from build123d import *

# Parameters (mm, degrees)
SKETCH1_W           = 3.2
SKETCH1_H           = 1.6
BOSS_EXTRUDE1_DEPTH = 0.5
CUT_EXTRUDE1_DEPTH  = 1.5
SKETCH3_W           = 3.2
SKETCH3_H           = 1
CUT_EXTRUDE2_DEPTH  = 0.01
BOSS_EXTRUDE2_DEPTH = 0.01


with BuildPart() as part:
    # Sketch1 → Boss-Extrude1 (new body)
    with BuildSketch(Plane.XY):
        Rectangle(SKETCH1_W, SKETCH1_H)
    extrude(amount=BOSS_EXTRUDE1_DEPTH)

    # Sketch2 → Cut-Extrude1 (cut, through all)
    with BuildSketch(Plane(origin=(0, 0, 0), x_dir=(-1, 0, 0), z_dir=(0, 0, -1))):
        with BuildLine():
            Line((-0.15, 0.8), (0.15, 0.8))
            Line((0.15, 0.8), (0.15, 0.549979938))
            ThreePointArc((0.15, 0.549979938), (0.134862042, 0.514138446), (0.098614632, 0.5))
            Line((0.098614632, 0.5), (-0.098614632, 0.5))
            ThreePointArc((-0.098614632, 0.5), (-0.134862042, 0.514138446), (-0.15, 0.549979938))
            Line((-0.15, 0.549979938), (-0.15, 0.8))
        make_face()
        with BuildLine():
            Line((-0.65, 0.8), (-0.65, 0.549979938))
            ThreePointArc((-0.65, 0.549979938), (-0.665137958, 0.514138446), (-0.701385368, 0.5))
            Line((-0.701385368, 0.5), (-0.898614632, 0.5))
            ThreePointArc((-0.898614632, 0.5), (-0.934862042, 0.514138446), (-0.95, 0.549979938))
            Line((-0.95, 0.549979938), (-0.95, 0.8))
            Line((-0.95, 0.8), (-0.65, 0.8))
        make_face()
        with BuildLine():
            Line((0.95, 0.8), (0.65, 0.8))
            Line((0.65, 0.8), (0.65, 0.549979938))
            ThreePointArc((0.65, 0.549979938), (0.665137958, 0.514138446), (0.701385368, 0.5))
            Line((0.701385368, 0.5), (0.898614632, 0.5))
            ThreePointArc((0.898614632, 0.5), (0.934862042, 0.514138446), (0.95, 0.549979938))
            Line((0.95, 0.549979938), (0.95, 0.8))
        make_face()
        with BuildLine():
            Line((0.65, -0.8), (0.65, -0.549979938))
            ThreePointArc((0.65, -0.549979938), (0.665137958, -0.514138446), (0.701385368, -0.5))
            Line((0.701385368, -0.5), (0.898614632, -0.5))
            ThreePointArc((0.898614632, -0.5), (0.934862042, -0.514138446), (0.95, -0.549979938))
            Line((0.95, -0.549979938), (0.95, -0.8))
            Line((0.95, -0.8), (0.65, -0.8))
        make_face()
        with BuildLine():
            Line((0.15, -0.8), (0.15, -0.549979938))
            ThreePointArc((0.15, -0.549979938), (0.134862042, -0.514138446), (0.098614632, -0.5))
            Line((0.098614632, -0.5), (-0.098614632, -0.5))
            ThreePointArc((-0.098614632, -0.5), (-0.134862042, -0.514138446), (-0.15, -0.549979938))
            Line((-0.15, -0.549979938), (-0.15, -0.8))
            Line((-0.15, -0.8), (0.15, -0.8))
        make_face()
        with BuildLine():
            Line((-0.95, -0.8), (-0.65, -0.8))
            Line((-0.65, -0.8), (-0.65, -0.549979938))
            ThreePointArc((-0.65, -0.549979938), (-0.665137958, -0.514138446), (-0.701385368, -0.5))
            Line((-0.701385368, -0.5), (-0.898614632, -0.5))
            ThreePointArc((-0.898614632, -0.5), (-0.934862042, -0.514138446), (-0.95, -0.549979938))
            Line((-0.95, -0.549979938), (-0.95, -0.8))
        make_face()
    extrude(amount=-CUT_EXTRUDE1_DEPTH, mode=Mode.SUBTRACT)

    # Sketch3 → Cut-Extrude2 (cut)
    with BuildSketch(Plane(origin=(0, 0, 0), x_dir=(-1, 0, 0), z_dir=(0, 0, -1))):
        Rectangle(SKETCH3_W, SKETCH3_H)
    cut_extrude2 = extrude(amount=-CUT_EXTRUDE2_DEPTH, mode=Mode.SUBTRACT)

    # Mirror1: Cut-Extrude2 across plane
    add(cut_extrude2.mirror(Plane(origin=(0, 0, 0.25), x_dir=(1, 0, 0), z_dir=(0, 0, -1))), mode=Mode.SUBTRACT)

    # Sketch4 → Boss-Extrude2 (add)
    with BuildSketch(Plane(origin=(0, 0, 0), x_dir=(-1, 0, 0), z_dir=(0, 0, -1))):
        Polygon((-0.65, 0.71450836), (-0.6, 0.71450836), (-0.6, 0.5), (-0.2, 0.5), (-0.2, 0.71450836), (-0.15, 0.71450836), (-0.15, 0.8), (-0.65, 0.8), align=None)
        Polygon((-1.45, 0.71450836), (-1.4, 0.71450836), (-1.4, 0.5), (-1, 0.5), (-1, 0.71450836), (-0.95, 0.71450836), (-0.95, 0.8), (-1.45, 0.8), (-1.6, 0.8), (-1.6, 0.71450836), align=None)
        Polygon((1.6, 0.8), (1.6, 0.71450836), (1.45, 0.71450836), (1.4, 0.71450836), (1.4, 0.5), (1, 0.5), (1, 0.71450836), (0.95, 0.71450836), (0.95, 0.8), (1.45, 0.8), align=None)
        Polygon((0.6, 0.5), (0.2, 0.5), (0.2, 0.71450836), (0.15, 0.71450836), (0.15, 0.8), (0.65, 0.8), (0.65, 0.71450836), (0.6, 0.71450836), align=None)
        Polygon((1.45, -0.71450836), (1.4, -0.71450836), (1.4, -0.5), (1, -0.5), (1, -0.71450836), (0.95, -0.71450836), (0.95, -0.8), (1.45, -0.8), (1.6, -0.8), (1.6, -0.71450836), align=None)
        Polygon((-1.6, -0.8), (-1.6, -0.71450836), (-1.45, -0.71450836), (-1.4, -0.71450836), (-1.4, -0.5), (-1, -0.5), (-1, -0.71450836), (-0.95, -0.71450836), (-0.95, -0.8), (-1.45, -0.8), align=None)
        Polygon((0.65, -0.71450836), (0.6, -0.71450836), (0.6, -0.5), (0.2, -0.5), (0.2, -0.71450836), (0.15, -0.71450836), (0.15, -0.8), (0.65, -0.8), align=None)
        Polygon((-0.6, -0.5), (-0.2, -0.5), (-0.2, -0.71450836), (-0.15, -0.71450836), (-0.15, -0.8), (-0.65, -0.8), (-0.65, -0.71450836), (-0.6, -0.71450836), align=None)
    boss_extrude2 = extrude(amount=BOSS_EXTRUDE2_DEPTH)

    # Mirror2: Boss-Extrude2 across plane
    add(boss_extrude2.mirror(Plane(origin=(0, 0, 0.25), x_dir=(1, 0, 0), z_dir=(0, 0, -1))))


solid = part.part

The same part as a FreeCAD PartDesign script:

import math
import FreeCAD as App
import Part
import Sketcher
from FreeCAD import Vector
Q = App.Units.Quantity


def add_polygon(sketch, points):
    """Adds a closed chain of lines whose ends are joined by coincident constraints."""
    first, n = sketch.GeometryCount, len(points)
    for a, b in zip(points, points[1:] + points[:1]):
        sketch.addGeometry(Part.LineSegment(App.Vector(*a, 0), App.Vector(*b, 0)), False)
    for i in range(n):
        sketch.addConstraint(Sketcher.Constraint("Coincident", first + i, 2, first + (i + 1) % n, 1))

doc = App.newDocument("Part")
body = doc.addObject("PartDesign::Body", "Body")

# Sketch on XY plane
sketch1 = doc.addObject("Sketcher::SketchObject", "Sketch")
body.addObject(sketch1)
sketch1.AttachmentSupport = (doc.XY_Plane, [""])
sketch1.MapMode = "FlatFace"
add_polygon(sketch1, [(-1.6, 0.8), (-1.6, -0.8), (1.6, -0.8), (1.6, 0.8)])  # lines 0-3
sketch1.addConstraint(Sketcher.Constraint("Vertical", 0))
sketch1.addConstraint(Sketcher.Constraint("Horizontal", 1))
sketch1.addConstraint(Sketcher.Constraint("Vertical", 2))
sketch1.addConstraint(Sketcher.Constraint("Horizontal", 3))
sketch1.addConstraint(Sketcher.Constraint("Symmetric", 0, 2, 2, 2, -1, 1))
sketch1.addConstraint(Sketcher.Constraint("DistanceX", 1, 1, 1, 2, Q("3.2 mm")))
sketch1.addConstraint(Sketcher.Constraint("DistanceY", 0, 2, 0, 1, Q("1.6 mm")))
pad1 = doc.addObject("PartDesign::Pad", "Pad")
body.addObject(pad1)
pad1.Profile = sketch1
pad1.Length = 0.5

# Sketch on XY plane
sketch2 = doc.addObject("Sketcher::SketchObject", "Sketch001")
body.addObject(sketch2)
sketch2.AttachmentSupport = (doc.XY_Plane, [""])
sketch2.MapMode = "FlatFace"
sketch2.addGeometry(Part.LineSegment(Vector(-0.15, 0.8, 0), Vector(0.15, 0.8, 0)), False)
sketch2.addGeometry(Part.LineSegment(Vector(0.15, 0.8, 0), Vector(0.15, 0.54998, 0)), False)
sketch2.addGeometry(Part.ArcOfCircle(Part.Circle(Vector(0.100001, 0.54998, 0), Vector(0, 0, 1), 0.049999), math.radians(-91.588711), math.radians(0)), False)
sketch2.addGeometry(Part.LineSegment(Vector(0.098615, 0.5, 0), Vector(-0.098615, 0.5, 0)), False)
sketch2.addGeometry(Part.ArcOfCircle(Part.Circle(Vector(-0.100001, 0.54998, 0), Vector(0, 0, 1), 0.049999), math.radians(180), math.radians(271.588711)), False)
sketch2.addGeometry(Part.LineSegment(Vector(-0.15, 0.54998, 0), Vector(-0.15, 0.8, 0)), False)
sketch2.addGeometry(Part.LineSegment(Vector(0.65, 0.54998, 0), Vector(0.65, 0.8, 0)), False)
sketch2.addGeometry(Part.LineSegment(Vector(0.65, 0.8, 0), Vector(0.95, 0.8, 0)), False)
sketch2.addGeometry(Part.LineSegment(Vector(0.95, 0.8, 0), Vector(0.95, 0.54998, 0)), False)
sketch2.addGeometry(Part.ArcOfCircle(Part.Circle(Vector(0.900001, 0.54998, 0), Vector(0, 0, 1), 0.049999), math.radians(-91.588711), math.radians(0)), False)
sketch2.addGeometry(Part.LineSegment(Vector(0.898615, 0.5, 0), Vector(0.701385, 0.5, 0)), False)
sketch2.addGeometry(Part.ArcOfCircle(Part.Circle(Vector(0.699999, 0.54998, 0), Vector(0, 0, 1), 0.049999), math.radians(180), math.radians(271.588711)), False)
sketch2.addGeometry(Part.LineSegment(Vector(-0.95, 0.8, 0), Vector(-0.65, 0.8, 0)), False)
sketch2.addGeometry(Part.LineSegment(Vector(-0.65, 0.8, 0), Vector(-0.65, 0.54998, 0)), False)
sketch2.addGeometry(Part.ArcOfCircle(Part.Circle(Vector(-0.699999, 0.54998, 0), Vector(0, 0, 1), 0.049999), math.radians(-91.588711), math.radians(0)), False)
sketch2.addGeometry(Part.LineSegment(Vector(-0.701385, 0.5, 0), Vector(-0.898615, 0.5, 0)), False)
sketch2.addGeometry(Part.ArcOfCircle(Part.Circle(Vector(-0.900001, 0.54998, 0), Vector(0, 0, 1), 0.049999), math.radians(180), math.radians(271.588711)), False)
sketch2.addGeometry(Part.LineSegment(Vector(-0.95, 0.54998, 0), Vector(-0.95, 0.8, 0)), False)
sketch2.addGeometry(Part.LineSegment(Vector(-0.65, -0.54998, 0), Vector(-0.65, -0.8, 0)), False)
sketch2.addGeometry(Part.LineSegment(Vector(-0.65, -0.8, 0), Vector(-0.95, -0.8, 0)), False)
sketch2.addGeometry(Part.LineSegment(Vector(-0.95, -0.8, 0), Vector(-0.95, -0.54998, 0)), False)
sketch2.addGeometry(Part.ArcOfCircle(Part.Circle(Vector(-0.900001, -0.54998, 0), Vector(0, 0, 1), 0.049999), math.radians(88.411289), math.radians(180)), False)
sketch2.addGeometry(Part.LineSegment(Vector(-0.898615, -0.5, 0), Vector(-0.701385, -0.5, 0)), False)
sketch2.addGeometry(Part.ArcOfCircle(Part.Circle(Vector(-0.699999, -0.54998, 0), Vector(0, 0, 1), 0.049999), math.radians(0), math.radians(91.588711)), False)
sketch2.addGeometry(Part.LineSegment(Vector(-0.15, -0.8, 0), Vector(-0.15, -0.54998, 0)), False)
sketch2.addGeometry(Part.ArcOfCircle(Part.Circle(Vector(-0.100001, -0.54998, 0), Vector(0, 0, 1), 0.049999), math.radians(88.411289), math.radians(180)), False)
sketch2.addGeometry(Part.LineSegment(Vector(-0.098615, -0.5, 0), Vector(0.098615, -0.5, 0)), False)
sketch2.addGeometry(Part.ArcOfCircle(Part.Circle(Vector(0.100001, -0.54998, 0), Vector(0, 0, 1), 0.049999), math.radians(0), math.radians(91.588711)), False)
sketch2.addGeometry(Part.LineSegment(Vector(0.15, -0.54998, 0), Vector(0.15, -0.8, 0)), False)
sketch2.addGeometry(Part.LineSegment(Vector(0.15, -0.8, 0), Vector(-0.15, -0.8, 0)), False)
sketch2.addGeometry(Part.LineSegment(Vector(0.95, -0.8, 0), Vector(0.65, -0.8, 0)), False)
sketch2.addGeometry(Part.LineSegment(Vector(0.65, -0.8, 0), Vector(0.65, -0.54998, 0)), False)
sketch2.addGeometry(Part.ArcOfCircle(Part.Circle(Vector(0.699999, -0.54998, 0), Vector(0, 0, 1), 0.049999), math.radians(88.411289), math.radians(180)), False)
sketch2.addGeometry(Part.LineSegment(Vector(0.701385, -0.5, 0), Vector(0.898615, -0.5, 0)), False)
sketch2.addGeometry(Part.ArcOfCircle(Part.Circle(Vector(0.900001, -0.54998, 0), Vector(0, 0, 1), 0.049999), math.radians(0), math.radians(91.588711)), False)
sketch2.addGeometry(Part.LineSegment(Vector(0.95, -0.54998, 0), Vector(0.95, -0.8, 0)), False)
sketch2.addConstraint(Sketcher.Constraint("Coincident", 0, 2, 1, 1))
sketch2.addConstraint(Sketcher.Constraint("Tangent", 1, 2, 2, 2))
sketch2.addConstraint(Sketcher.Constraint("Coincident", 2, 1, 3, 1))
sketch2.addConstraint(Sketcher.Constraint("Coincident", 3, 2, 4, 2))
sketch2.addConstraint(Sketcher.Constraint("Tangent", 4, 1, 5, 1))
sketch2.addConstraint(Sketcher.Constraint("Coincident", 5, 2, 0, 1))
sketch2.addConstraint(Sketcher.Constraint("Coincident", 6, 2, 7, 1))
sketch2.addConstraint(Sketcher.Constraint("Coincident", 7, 2, 8, 1))
sketch2.addConstraint(Sketcher.Constraint("Tangent", 8, 2, 9, 2))
sketch2.addConstraint(Sketcher.Constraint("Coincident", 9, 1, 10, 1))
sketch2.addConstraint(Sketcher.Constraint("Coincident", 10, 2, 11, 2))
sketch2.addConstraint(Sketcher.Constraint("Tangent", 11, 1, 6, 1))
sketch2.addConstraint(Sketcher.Constraint("Coincident", 12, 2, 13, 1))
sketch2.addConstraint(Sketcher.Constraint("Tangent", 13, 2, 14, 2))
sketch2.addConstraint(Sketcher.Constraint("Coincident", 14, 1, 15, 1))
sketch2.addConstraint(Sketcher.Constraint("Coincident", 15, 2, 16, 2))
sketch2.addConstraint(Sketcher.Constraint("Tangent", 16, 1, 17, 1))
sketch2.addConstraint(Sketcher.Constraint("Coincident", 17, 2, 12, 1))
sketch2.addConstraint(Sketcher.Constraint("Coincident", 18, 2, 19, 1))
sketch2.addConstraint(Sketcher.Constraint("Coincident", 19, 2, 20, 1))
sketch2.addConstraint(Sketcher.Constraint("Tangent", 20, 2, 21, 2))
sketch2.addConstraint(Sketcher.Constraint("Coincident", 21, 1, 22, 1))
sketch2.addConstraint(Sketcher.Constraint("Coincident", 22, 2, 23, 2))
sketch2.addConstraint(Sketcher.Constraint("Tangent", 23, 1, 18, 1))
sketch2.addConstraint(Sketcher.Constraint("Tangent", 24, 2, 25, 2))
sketch2.addConstraint(Sketcher.Constraint("Coincident", 25, 1, 26, 1))
sketch2.addConstraint(Sketcher.Constraint("Coincident", 26, 2, 27, 2))
sketch2.addConstraint(Sketcher.Constraint("Tangent", 27, 1, 28, 1))
sketch2.addConstraint(Sketcher.Constraint("Coincident", 28, 2, 29, 1))
sketch2.addConstraint(Sketcher.Constraint("Coincident", 29, 2, 24, 1))
sketch2.addConstraint(Sketcher.Constraint("Coincident", 30, 2, 31, 1))
sketch2.addConstraint(Sketcher.Constraint("Tangent", 31, 2, 32, 2))
sketch2.addConstraint(Sketcher.Constraint("Coincident", 32, 1, 33, 1))
sketch2.addConstraint(Sketcher.Constraint("Coincident", 33, 2, 34, 2))
sketch2.addConstraint(Sketcher.Constraint("Tangent", 34, 1, 35, 1))
sketch2.addConstraint(Sketcher.Constraint("Coincident", 35, 2, 30, 1))
sketch2.addConstraint(Sketcher.Constraint("Horizontal", 0))
sketch2.addConstraint(Sketcher.Constraint("Vertical", 1))
sketch2.addConstraint(Sketcher.Constraint("Horizontal", 3))
sketch2.addConstraint(Sketcher.Constraint("Vertical", 5))
sketch2.addConstraint(Sketcher.Constraint("Vertical", 6))
sketch2.addConstraint(Sketcher.Constraint("Horizontal", 7))
sketch2.addConstraint(Sketcher.Constraint("Vertical", 8))
sketch2.addConstraint(Sketcher.Constraint("Horizontal", 10))
sketch2.addConstraint(Sketcher.Constraint("Horizontal", 12))
sketch2.addConstraint(Sketcher.Constraint("Vertical", 13))
sketch2.addConstraint(Sketcher.Constraint("Horizontal", 15))
sketch2.addConstraint(Sketcher.Constraint("Vertical", 17))
sketch2.addConstraint(Sketcher.Constraint("Vertical", 18))
sketch2.addConstraint(Sketcher.Constraint("Horizontal", 19))
sketch2.addConstraint(Sketcher.Constraint("Vertical", 20))
sketch2.addConstraint(Sketcher.Constraint("Horizontal", 22))
sketch2.addConstraint(Sketcher.Constraint("Vertical", 24))
sketch2.addConstraint(Sketcher.Constraint("Horizontal", 26))
sketch2.addConstraint(Sketcher.Constraint("Vertical", 28))
sketch2.addConstraint(Sketcher.Constraint("Horizontal", 29))
sketch2.addConstraint(Sketcher.Constraint("Horizontal", 30))
sketch2.addConstraint(Sketcher.Constraint("Vertical", 31))
sketch2.addConstraint(Sketcher.Constraint("Horizontal", 33))
sketch2.addConstraint(Sketcher.Constraint("Vertical", 35))
sketch2.addConstraint(Sketcher.Constraint("Equal", 2, 4))
sketch2.addConstraint(Sketcher.Constraint("Equal", 4, 9))
sketch2.addConstraint(Sketcher.Constraint("Equal", 9, 11))
sketch2.addConstraint(Sketcher.Constraint("Equal", 11, 14))
sketch2.addConstraint(Sketcher.Constraint("Equal", 14, 16))
sketch2.addConstraint(Sketcher.Constraint("Equal", 16, 21))
sketch2.addConstraint(Sketcher.Constraint("Equal", 21, 23))
sketch2.addConstraint(Sketcher.Constraint("Equal", 23, 25))
sketch2.addConstraint(Sketcher.Constraint("Equal", 25, 27))
sketch2.addConstraint(Sketcher.Constraint("Equal", 27, 32))
sketch2.addConstraint(Sketcher.Constraint("Equal", 32, 34))
sketch2.addConstraint(Sketcher.Constraint("Symmetric", 9, 3, 21, 3, -1, 1))
sketch2.addConstraint(Sketcher.Constraint("Symmetric", 2, 3, 25, 3, -1, 1))
sketch2.addConstraint(Sketcher.Constraint("Symmetric", 14, 3, 32, 3, -1, 1))
sketch2.addConstraint(Sketcher.Constraint("Symmetric", 6, 2, 18, 2, -1, 1))
sketch2.addConstraint(Sketcher.Constraint("Symmetric", 5, 2, 28, 2, -1, 1))
sketch2.addConstraint(Sketcher.Constraint("Symmetric", 17, 2, 35, 2, -1, 1))
sketch2.addConstraint(Sketcher.Constraint("Symmetric", 11, 3, 14, 3, -2))
sketch2.addConstraint(Sketcher.Constraint("Symmetric", 7, 2, 17, 2, -2))
sketch2.addConstraint(Sketcher.Constraint("Horizontal", 4, 3, 9, 3))
sketch2.addConstraint(Sketcher.Constraint("Horizontal", 27, 3, 32, 3))
sketch2.addConstraint(Sketcher.Constraint("Horizontal", 5, 2, 6, 2))
sketch2.addConstraint(Sketcher.Constraint("Vertical", 4, 3, 25, 3))
sketch2.addConstraint(Sketcher.Constraint("Vertical", 15, 2, 21, 1))
sketch2.addConstraint(Sketcher.Constraint("Vertical", 14, 1, 22, 2))
sketch2.addConstraint(Sketcher.Constraint("Vertical", 3, 2, 25, 1))
sketch2.addConstraint(Sketcher.Constraint("Vertical", 2, 1, 26, 2))
sketch2.addConstraint(Sketcher.Constraint("Vertical", 10, 2, 32, 1))
sketch2.addConstraint(Sketcher.Constraint("Vertical", 9, 1, 33, 2))
sketch2.addConstraint(Sketcher.Constraint("Equal", 0, 7))
sketch2.addConstraint(Sketcher.Constraint("Equal", 3, 10))
sketch2.addConstraint(Sketcher.Constraint("Equal", 10, 15))
sketch2.addConstraint(Sketcher.Constraint("Radius", 2, Q("0.049999 mm")))
sketch2.addConstraint(Sketcher.Constraint("DistanceX", 0, 1, 0, 2, Q("0.3 mm")))
sketch2.addConstraint(Sketcher.Constraint("DistanceX", 4, 3, 9, 3, Q("1.000002 mm")))
sketch2.addConstraint(Sketcher.Constraint("DistanceY", -1, 1, 0, 2, Q("0.8 mm")))
sketch2.addConstraint(Sketcher.Constraint("DistanceY", -1, 1, 2, 1, Q("0.5 mm")))
sketch2.addConstraint(Sketcher.Constraint("DistanceX", 3, 2, 3, 1, Q("0.197229 mm")))
sketch2.addConstraint(Sketcher.Constraint("DistanceX", 22, 2, 25, 1, Q("0.602771 mm")))
sketch2.addConstraint(Sketcher.Constraint("DistanceX", -1, 1, 2, 1, Q("0.098615 mm")))
pocket1 = doc.addObject("PartDesign::Pocket", "Pocket")
body.addObject(pocket1)
pocket1.Profile = sketch2
pocket1.Type = "ThroughAll"
pocket1.Reversed = True

# Sketch on XY plane
sketch3 = doc.addObject("Sketcher::SketchObject", "Sketch002")
body.addObject(sketch3)
sketch3.AttachmentSupport = (doc.XY_Plane, [""])
sketch3.MapMode = "FlatFace"
add_polygon(sketch3, [(1.6, 0.5), (1.6, -0.5), (-1.6, -0.5), (-1.6, 0.5)])  # lines 0-3
sketch3.addConstraint(Sketcher.Constraint("Vertical", 0))
sketch3.addConstraint(Sketcher.Constraint("Horizontal", 1))
sketch3.addConstraint(Sketcher.Constraint("Vertical", 2))
sketch3.addConstraint(Sketcher.Constraint("Horizontal", 3))
sketch3.addConstraint(Sketcher.Constraint("Symmetric", 0, 2, 2, 2, -1, 1))
sketch3.addConstraint(Sketcher.Constraint("DistanceY", 0, 2, 0, 1, Q("1 mm")))
sketch3.addConstraint(Sketcher.Constraint("DistanceX", 1, 2, 1, 1, Q("3.2 mm")))
pocket2 = doc.addObject("PartDesign::Pocket", "Pocket001")
body.addObject(pocket2)
pocket2.Profile = sketch3
pocket2.Length = 0.01
pocket2.Reversed = True
doc.recompute()

datumplane = doc.addObject("PartDesign::Plane", "DatumPlane")
body.addObject(datumplane)
datumplane.AttachmentSupport = (doc.XY_Plane, [""])
datumplane.MapMode = "FlatFace"
datumplane.AttachmentOffset = App.Placement(Vector(0, 0, 0.25), App.Rotation())
mirrored = doc.addObject("PartDesign::Mirrored", "Mirrored")
body.addObject(mirrored)
mirrored.Originals = [pocket2]
mirrored.MirrorPlane = (datumplane, [""])
body.Tip = mirrored

# Sketch on XY plane
sketch4 = doc.addObject("Sketcher::SketchObject", "Sketch003")
body.addObject(sketch4)
sketch4.AttachmentSupport = (doc.XY_Plane, [""])
sketch4.MapMode = "FlatFace"
add_polygon(sketch4, [(0.65, 0.714508), (0.6, 0.714508), (0.6, 0.5), (0.2, 0.5), (0.2, 0.714508), (0.15, 0.714508), (0.15, 0.8), (0.65, 0.8)])  # lines 0-7
add_polygon(sketch4, [(1.4, 0.714508), (1.4, 0.5), (1, 0.5), (1, 0.714508), (0.95, 0.714508), (0.95, 0.8), (1.6, 0.8), (1.6, 0.714508)])  # lines 8-15
add_polygon(sketch4, [(-1.6, 0.714508), (-1.6, 0.8), (-0.95, 0.8), (-0.95, 0.714508), (-1, 0.714508), (-1, 0.5), (-1.4, 0.5), (-1.4, 0.714508)])  # lines 16-23
add_polygon(sketch4, [(-0.2, 0.5), (-0.6, 0.5), (-0.6, 0.714508), (-0.65, 0.714508), (-0.65, 0.8), (-0.15, 0.8), (-0.15, 0.714508), (-0.2, 0.714508)])  # lines 24-31
add_polygon(sketch4, [(-1.4, -0.714508), (-1.4, -0.5), (-1, -0.5), (-1, -0.714508), (-0.95, -0.714508), (-0.95, -0.8), (-1.6, -0.8), (-1.6, -0.714508)])  # lines 32-39
add_polygon(sketch4, [(1.6, -0.714508), (1.6, -0.8), (0.95, -0.8), (0.95, -0.714508), (1, -0.714508), (1, -0.5), (1.4, -0.5), (1.4, -0.714508)])  # lines 40-47
add_polygon(sketch4, [(-0.65, -0.714508), (-0.6, -0.714508), (-0.6, -0.5), (-0.2, -0.5), (-0.2, -0.714508), (-0.15, -0.714508), (-0.15, -0.8), (-0.65, -0.8)])  # lines 48-55
add_polygon(sketch4, [(0.2, -0.5), (0.6, -0.5), (0.6, -0.714508), (0.65, -0.714508), (0.65, -0.8), (0.15, -0.8), (0.15, -0.714508), (0.2, -0.714508)])  # lines 56-63
sketch4.addConstraint(Sketcher.Constraint("Horizontal", 0))
sketch4.addConstraint(Sketcher.Constraint("Vertical", 1))
sketch4.addConstraint(Sketcher.Constraint("Horizontal", 2))
sketch4.addConstraint(Sketcher.Constraint("Vertical", 3))
sketch4.addConstraint(Sketcher.Constraint("Horizontal", 4))
sketch4.addConstraint(Sketcher.Constraint("Vertical", 5))
sketch4.addConstraint(Sketcher.Constraint("Horizontal", 6))
sketch4.addConstraint(Sketcher.Constraint("Vertical", 7))
sketch4.addConstraint(Sketcher.Constraint("Vertical", 8))
sketch4.addConstraint(Sketcher.Constraint("Horizontal", 9))
sketch4.addConstraint(Sketcher.Constraint("Vertical", 10))
sketch4.addConstraint(Sketcher.Constraint("Horizontal", 11))
sketch4.addConstraint(Sketcher.Constraint("Vertical", 12))
sketch4.addConstraint(Sketcher.Constraint("Horizontal", 13))
sketch4.addConstraint(Sketcher.Constraint("Vertical", 14))
sketch4.addConstraint(Sketcher.Constraint("Horizontal", 15))
sketch4.addConstraint(Sketcher.Constraint("Vertical", 16))
sketch4.addConstraint(Sketcher.Constraint("Horizontal", 17))
sketch4.addConstraint(Sketcher.Constraint("Vertical", 18))
sketch4.addConstraint(Sketcher.Constraint("Horizontal", 19))
sketch4.addConstraint(Sketcher.Constraint("Vertical", 20))
sketch4.addConstraint(Sketcher.Constraint("Horizontal", 21))
sketch4.addConstraint(Sketcher.Constraint("Vertical", 22))
sketch4.addConstraint(Sketcher.Constraint("Horizontal", 23))
sketch4.addConstraint(Sketcher.Constraint("Horizontal", 24))
sketch4.addConstraint(Sketcher.Constraint("Vertical", 25))
sketch4.addConstraint(Sketcher.Constraint("Horizontal", 26))
sketch4.addConstraint(Sketcher.Constraint("Vertical", 27))
sketch4.addConstraint(Sketcher.Constraint("Horizontal", 28))
sketch4.addConstraint(Sketcher.Constraint("Vertical", 29))
sketch4.addConstraint(Sketcher.Constraint("Horizontal", 30))
sketch4.addConstraint(Sketcher.Constraint("Vertical", 31))
sketch4.addConstraint(Sketcher.Constraint("Vertical", 32))
sketch4.addConstraint(Sketcher.Constraint("Horizontal", 33))
sketch4.addConstraint(Sketcher.Constraint("Vertical", 34))
sketch4.addConstraint(Sketcher.Constraint("Horizontal", 35))
sketch4.addConstraint(Sketcher.Constraint("Vertical", 36))
sketch4.addConstraint(Sketcher.Constraint("Horizontal", 37))
sketch4.addConstraint(Sketcher.Constraint("Vertical", 38))
sketch4.addConstraint(Sketcher.Constraint("Horizontal", 39))
sketch4.addConstraint(Sketcher.Constraint("Vertical", 40))
sketch4.addConstraint(Sketcher.Constraint("Horizontal", 41))
sketch4.addConstraint(Sketcher.Constraint("Vertical", 42))
sketch4.addConstraint(Sketcher.Constraint("Horizontal", 43))
sketch4.addConstraint(Sketcher.Constraint("Vertical", 44))
sketch4.addConstraint(Sketcher.Constraint("Horizontal", 45))
sketch4.addConstraint(Sketcher.Constraint("Vertical", 46))
sketch4.addConstraint(Sketcher.Constraint("Horizontal", 47))
sketch4.addConstraint(Sketcher.Constraint("Horizontal", 48))
sketch4.addConstraint(Sketcher.Constraint("Vertical", 49))
sketch4.addConstraint(Sketcher.Constraint("Horizontal", 50))
sketch4.addConstraint(Sketcher.Constraint("Vertical", 51))
sketch4.addConstraint(Sketcher.Constraint("Horizontal", 52))
sketch4.addConstraint(Sketcher.Constraint("Vertical", 53))
sketch4.addConstraint(Sketcher.Constraint("Horizontal", 54))
sketch4.addConstraint(Sketcher.Constraint("Vertical", 55))
sketch4.addConstraint(Sketcher.Constraint("Horizontal", 56))
sketch4.addConstraint(Sketcher.Constraint("Vertical", 57))
sketch4.addConstraint(Sketcher.Constraint("Horizontal", 58))
sketch4.addConstraint(Sketcher.Constraint("Vertical", 59))
sketch4.addConstraint(Sketcher.Constraint("Horizontal", 60))
sketch4.addConstraint(Sketcher.Constraint("Vertical", 61))
sketch4.addConstraint(Sketcher.Constraint("Horizontal", 62))
sketch4.addConstraint(Sketcher.Constraint("Vertical", 63))
sketch4.addConstraint(Sketcher.Constraint("Symmetric", 8, 2, 32, 2, -1, 1))
sketch4.addConstraint(Sketcher.Constraint("Symmetric", 10, 2, 34, 2, -1, 1))
sketch4.addConstraint(Sketcher.Constraint("Symmetric", 12, 2, 36, 2, -1, 1))
sketch4.addConstraint(Sketcher.Constraint("Symmetric", 14, 2, 38, 2, -1, 1))
sketch4.addConstraint(Sketcher.Constraint("Symmetric", 16, 2, 40, 2, -1, 1))
sketch4.addConstraint(Sketcher.Constraint("Symmetric", 18, 2, 42, 2, -1, 1))
sketch4.addConstraint(Sketcher.Constraint("Symmetric", 20, 2, 44, 2, -1, 1))
sketch4.addConstraint(Sketcher.Constraint("Symmetric", 22, 2, 46, 2, -1, 1))
sketch4.addConstraint(Sketcher.Constraint("Symmetric", 0, 2, 48, 2, -1, 1))
sketch4.addConstraint(Sketcher.Constraint("Symmetric", 2, 2, 50, 2, -1, 1))
sketch4.addConstraint(Sketcher.Constraint("Symmetric", 4, 2, 52, 2, -1, 1))
sketch4.addConstraint(Sketcher.Constraint("Symmetric", 6, 2, 54, 2, -1, 1))
sketch4.addConstraint(Sketcher.Constraint("Symmetric", 24, 2, 56, 2, -1, 1))
sketch4.addConstraint(Sketcher.Constraint("Symmetric", 26, 2, 58, 2, -1, 1))
sketch4.addConstraint(Sketcher.Constraint("Symmetric", 28, 2, 60, 2, -1, 1))
sketch4.addConstraint(Sketcher.Constraint("Symmetric", 30, 2, 62, 2, -1, 1))
sketch4.addConstraint(Sketcher.Constraint("Symmetric", 13, 2, 16, 2, -2))
sketch4.addConstraint(Sketcher.Constraint("Symmetric", 11, 2, 18, 2, -2))
sketch4.addConstraint(Sketcher.Constraint("Symmetric", 9, 2, 20, 2, -2))
sketch4.addConstraint(Sketcher.Constraint("Symmetric", 15, 2, 22, 2, -2))
sketch4.addConstraint(Sketcher.Constraint("Symmetric", 1, 2, 24, 2, -2))
sketch4.addConstraint(Sketcher.Constraint("Symmetric", 7, 2, 26, 2, -2))
sketch4.addConstraint(Sketcher.Constraint("Symmetric", 5, 2, 28, 2, -2))
sketch4.addConstraint(Sketcher.Constraint("Symmetric", 3, 2, 30, 2, -2))
sketch4.addConstraint(Sketcher.Constraint("Horizontal", 0, 2, 3, 2))
sketch4.addConstraint(Sketcher.Constraint("Horizontal", 2, 2, 8, 2))
sketch4.addConstraint(Sketcher.Constraint("Horizontal", 7, 2, 10, 2))
sketch4.addConstraint(Sketcher.Constraint("Horizontal", 6, 2, 12, 2))
sketch4.addConstraint(Sketcher.Constraint("Horizontal", 11, 2, 14, 2))
sketch4.addConstraint(Sketcher.Constraint("Equal", 0, 4))
sketch4.addConstraint(Sketcher.Constraint("Equal", 2, 9))
sketch4.addConstraint(Sketcher.Constraint("Equal", 4, 11))
sketch4.addConstraint(Sketcher.Constraint("DistanceX", 2, 2, 2, 1, Q("0.4 mm")))
sketch4.addConstraint(Sketcher.Constraint("DistanceX", 6, 1, 6, 2, Q("0.5 mm")))
sketch4.addConstraint(Sketcher.Constraint("DistanceX", 15, 2, 15, 1, Q("0.2 mm")))
sketch4.addConstraint(Sketcher.Constraint("DistanceX", -1, 1, 9, 2, Q("1 mm")))
sketch4.addConstraint(Sketcher.Constraint("DistanceX", -1, 1, 0, 2, Q("0.6 mm")))
sketch4.addConstraint(Sketcher.Constraint("DistanceY", -1, 1, 1, 2, Q("0.5 mm")))
sketch4.addConstraint(Sketcher.Constraint("DistanceY", -1, 1, 5, 2, Q("0.8 mm")))
sketch4.addConstraint(Sketcher.Constraint("DistanceY", 1, 2, 1, 1, Q("0.214508 mm")))
pad2 = doc.addObject("PartDesign::Pad", "Pad001")
body.addObject(pad2)
pad2.Profile = sketch4
pad2.Length = 0.01
pad2.Reversed = True
doc.recompute()

datumplane2 = doc.addObject("PartDesign::Plane", "DatumPlane001")
body.addObject(datumplane2)
datumplane2.AttachmentSupport = (doc.XY_Plane, [""])
datumplane2.MapMode = "FlatFace"
datumplane2.AttachmentOffset = App.Placement(Vector(0, 0, 0.25), App.Rotation())
mirrored2 = doc.addObject("PartDesign::Mirrored", "Mirrored001")
body.addObject(mirrored2)
mirrored2.Originals = [pad2]
mirrored2.MirrorPlane = (datumplane2, [""])
body.Tip = mirrored2

doc.recompute()
